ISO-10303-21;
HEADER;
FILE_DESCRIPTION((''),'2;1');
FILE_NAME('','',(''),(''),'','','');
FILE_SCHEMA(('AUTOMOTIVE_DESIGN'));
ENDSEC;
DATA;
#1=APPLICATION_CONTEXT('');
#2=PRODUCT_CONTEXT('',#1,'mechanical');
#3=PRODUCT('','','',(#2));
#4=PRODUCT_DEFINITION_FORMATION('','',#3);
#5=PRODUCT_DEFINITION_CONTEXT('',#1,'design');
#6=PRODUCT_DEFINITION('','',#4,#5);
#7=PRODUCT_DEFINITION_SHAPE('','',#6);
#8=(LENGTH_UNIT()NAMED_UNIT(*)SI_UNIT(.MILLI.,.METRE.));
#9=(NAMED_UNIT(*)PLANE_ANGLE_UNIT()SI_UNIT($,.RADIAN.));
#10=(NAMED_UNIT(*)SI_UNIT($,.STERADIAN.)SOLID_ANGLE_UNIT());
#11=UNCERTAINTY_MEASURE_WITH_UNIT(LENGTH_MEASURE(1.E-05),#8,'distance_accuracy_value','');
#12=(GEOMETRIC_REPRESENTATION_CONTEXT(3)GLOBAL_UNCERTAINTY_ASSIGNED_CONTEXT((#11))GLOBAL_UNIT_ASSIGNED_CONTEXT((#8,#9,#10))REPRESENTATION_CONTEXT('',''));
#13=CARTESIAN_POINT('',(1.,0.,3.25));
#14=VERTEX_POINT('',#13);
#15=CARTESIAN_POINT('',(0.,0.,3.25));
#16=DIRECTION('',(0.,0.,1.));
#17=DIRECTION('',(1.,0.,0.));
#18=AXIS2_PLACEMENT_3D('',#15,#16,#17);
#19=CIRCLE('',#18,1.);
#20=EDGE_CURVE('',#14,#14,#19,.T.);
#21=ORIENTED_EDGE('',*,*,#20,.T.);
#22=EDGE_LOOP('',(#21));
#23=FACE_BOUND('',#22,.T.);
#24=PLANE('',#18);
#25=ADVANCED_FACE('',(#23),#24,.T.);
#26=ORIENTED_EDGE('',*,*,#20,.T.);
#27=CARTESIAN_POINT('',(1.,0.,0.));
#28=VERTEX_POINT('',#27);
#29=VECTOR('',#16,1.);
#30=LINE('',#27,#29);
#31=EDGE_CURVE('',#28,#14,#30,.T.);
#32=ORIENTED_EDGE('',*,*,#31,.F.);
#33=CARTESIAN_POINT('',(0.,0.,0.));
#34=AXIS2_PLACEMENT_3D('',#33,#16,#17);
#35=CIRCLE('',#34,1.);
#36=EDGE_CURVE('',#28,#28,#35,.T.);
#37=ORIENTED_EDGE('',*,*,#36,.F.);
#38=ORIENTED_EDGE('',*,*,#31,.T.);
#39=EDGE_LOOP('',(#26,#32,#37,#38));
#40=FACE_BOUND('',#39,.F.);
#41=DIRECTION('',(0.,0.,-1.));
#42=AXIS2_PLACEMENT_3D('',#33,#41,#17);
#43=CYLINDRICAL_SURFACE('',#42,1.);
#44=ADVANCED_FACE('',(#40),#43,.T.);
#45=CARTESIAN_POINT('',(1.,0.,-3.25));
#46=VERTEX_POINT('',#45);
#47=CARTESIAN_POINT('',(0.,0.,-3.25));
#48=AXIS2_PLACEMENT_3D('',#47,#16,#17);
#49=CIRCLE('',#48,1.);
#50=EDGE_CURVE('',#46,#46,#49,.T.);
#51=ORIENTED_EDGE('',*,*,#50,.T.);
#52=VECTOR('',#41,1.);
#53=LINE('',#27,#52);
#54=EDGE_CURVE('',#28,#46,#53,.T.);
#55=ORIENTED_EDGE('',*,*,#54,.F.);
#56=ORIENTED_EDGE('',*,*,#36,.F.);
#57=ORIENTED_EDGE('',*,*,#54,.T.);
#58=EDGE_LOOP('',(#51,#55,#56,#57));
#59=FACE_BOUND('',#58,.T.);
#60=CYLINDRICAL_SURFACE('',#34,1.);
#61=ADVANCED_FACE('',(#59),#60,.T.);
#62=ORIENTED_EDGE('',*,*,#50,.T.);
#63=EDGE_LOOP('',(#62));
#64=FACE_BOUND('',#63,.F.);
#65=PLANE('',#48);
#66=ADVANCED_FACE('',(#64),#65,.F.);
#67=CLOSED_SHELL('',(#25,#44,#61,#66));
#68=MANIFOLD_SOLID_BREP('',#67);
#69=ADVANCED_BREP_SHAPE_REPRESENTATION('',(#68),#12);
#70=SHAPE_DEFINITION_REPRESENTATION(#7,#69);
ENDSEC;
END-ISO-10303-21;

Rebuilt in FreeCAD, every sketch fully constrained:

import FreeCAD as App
import Part
import Sketcher

V = App.Vector

doc = App.newDocument("Part")
body = doc.addObject("PartDesign::Body", "Body")

# Sketch on XY plane
sketch1 = body.newObject("Sketcher::SketchObject", "Sketch")
sketch1.AttachmentSupport = (doc.getObject("XY_Plane"), [""])
sketch1.MapMode = "FlatFace"
sketch1.addGeometry(Part.Circle(V(0, 0, 0), V(0, 0, 1), 1), False)
sketch1.addConstraint([
    Sketcher.Constraint("Coincident", 0, 3, -1, 1),
    Sketcher.Constraint("Diameter", 0, 2.0),
])
pad1 = body.newObject("PartDesign::Pad", "Pad")
pad1.Profile = sketch1
pad1.Length = 6.5
pad1.Midplane = True

doc.recompute()
